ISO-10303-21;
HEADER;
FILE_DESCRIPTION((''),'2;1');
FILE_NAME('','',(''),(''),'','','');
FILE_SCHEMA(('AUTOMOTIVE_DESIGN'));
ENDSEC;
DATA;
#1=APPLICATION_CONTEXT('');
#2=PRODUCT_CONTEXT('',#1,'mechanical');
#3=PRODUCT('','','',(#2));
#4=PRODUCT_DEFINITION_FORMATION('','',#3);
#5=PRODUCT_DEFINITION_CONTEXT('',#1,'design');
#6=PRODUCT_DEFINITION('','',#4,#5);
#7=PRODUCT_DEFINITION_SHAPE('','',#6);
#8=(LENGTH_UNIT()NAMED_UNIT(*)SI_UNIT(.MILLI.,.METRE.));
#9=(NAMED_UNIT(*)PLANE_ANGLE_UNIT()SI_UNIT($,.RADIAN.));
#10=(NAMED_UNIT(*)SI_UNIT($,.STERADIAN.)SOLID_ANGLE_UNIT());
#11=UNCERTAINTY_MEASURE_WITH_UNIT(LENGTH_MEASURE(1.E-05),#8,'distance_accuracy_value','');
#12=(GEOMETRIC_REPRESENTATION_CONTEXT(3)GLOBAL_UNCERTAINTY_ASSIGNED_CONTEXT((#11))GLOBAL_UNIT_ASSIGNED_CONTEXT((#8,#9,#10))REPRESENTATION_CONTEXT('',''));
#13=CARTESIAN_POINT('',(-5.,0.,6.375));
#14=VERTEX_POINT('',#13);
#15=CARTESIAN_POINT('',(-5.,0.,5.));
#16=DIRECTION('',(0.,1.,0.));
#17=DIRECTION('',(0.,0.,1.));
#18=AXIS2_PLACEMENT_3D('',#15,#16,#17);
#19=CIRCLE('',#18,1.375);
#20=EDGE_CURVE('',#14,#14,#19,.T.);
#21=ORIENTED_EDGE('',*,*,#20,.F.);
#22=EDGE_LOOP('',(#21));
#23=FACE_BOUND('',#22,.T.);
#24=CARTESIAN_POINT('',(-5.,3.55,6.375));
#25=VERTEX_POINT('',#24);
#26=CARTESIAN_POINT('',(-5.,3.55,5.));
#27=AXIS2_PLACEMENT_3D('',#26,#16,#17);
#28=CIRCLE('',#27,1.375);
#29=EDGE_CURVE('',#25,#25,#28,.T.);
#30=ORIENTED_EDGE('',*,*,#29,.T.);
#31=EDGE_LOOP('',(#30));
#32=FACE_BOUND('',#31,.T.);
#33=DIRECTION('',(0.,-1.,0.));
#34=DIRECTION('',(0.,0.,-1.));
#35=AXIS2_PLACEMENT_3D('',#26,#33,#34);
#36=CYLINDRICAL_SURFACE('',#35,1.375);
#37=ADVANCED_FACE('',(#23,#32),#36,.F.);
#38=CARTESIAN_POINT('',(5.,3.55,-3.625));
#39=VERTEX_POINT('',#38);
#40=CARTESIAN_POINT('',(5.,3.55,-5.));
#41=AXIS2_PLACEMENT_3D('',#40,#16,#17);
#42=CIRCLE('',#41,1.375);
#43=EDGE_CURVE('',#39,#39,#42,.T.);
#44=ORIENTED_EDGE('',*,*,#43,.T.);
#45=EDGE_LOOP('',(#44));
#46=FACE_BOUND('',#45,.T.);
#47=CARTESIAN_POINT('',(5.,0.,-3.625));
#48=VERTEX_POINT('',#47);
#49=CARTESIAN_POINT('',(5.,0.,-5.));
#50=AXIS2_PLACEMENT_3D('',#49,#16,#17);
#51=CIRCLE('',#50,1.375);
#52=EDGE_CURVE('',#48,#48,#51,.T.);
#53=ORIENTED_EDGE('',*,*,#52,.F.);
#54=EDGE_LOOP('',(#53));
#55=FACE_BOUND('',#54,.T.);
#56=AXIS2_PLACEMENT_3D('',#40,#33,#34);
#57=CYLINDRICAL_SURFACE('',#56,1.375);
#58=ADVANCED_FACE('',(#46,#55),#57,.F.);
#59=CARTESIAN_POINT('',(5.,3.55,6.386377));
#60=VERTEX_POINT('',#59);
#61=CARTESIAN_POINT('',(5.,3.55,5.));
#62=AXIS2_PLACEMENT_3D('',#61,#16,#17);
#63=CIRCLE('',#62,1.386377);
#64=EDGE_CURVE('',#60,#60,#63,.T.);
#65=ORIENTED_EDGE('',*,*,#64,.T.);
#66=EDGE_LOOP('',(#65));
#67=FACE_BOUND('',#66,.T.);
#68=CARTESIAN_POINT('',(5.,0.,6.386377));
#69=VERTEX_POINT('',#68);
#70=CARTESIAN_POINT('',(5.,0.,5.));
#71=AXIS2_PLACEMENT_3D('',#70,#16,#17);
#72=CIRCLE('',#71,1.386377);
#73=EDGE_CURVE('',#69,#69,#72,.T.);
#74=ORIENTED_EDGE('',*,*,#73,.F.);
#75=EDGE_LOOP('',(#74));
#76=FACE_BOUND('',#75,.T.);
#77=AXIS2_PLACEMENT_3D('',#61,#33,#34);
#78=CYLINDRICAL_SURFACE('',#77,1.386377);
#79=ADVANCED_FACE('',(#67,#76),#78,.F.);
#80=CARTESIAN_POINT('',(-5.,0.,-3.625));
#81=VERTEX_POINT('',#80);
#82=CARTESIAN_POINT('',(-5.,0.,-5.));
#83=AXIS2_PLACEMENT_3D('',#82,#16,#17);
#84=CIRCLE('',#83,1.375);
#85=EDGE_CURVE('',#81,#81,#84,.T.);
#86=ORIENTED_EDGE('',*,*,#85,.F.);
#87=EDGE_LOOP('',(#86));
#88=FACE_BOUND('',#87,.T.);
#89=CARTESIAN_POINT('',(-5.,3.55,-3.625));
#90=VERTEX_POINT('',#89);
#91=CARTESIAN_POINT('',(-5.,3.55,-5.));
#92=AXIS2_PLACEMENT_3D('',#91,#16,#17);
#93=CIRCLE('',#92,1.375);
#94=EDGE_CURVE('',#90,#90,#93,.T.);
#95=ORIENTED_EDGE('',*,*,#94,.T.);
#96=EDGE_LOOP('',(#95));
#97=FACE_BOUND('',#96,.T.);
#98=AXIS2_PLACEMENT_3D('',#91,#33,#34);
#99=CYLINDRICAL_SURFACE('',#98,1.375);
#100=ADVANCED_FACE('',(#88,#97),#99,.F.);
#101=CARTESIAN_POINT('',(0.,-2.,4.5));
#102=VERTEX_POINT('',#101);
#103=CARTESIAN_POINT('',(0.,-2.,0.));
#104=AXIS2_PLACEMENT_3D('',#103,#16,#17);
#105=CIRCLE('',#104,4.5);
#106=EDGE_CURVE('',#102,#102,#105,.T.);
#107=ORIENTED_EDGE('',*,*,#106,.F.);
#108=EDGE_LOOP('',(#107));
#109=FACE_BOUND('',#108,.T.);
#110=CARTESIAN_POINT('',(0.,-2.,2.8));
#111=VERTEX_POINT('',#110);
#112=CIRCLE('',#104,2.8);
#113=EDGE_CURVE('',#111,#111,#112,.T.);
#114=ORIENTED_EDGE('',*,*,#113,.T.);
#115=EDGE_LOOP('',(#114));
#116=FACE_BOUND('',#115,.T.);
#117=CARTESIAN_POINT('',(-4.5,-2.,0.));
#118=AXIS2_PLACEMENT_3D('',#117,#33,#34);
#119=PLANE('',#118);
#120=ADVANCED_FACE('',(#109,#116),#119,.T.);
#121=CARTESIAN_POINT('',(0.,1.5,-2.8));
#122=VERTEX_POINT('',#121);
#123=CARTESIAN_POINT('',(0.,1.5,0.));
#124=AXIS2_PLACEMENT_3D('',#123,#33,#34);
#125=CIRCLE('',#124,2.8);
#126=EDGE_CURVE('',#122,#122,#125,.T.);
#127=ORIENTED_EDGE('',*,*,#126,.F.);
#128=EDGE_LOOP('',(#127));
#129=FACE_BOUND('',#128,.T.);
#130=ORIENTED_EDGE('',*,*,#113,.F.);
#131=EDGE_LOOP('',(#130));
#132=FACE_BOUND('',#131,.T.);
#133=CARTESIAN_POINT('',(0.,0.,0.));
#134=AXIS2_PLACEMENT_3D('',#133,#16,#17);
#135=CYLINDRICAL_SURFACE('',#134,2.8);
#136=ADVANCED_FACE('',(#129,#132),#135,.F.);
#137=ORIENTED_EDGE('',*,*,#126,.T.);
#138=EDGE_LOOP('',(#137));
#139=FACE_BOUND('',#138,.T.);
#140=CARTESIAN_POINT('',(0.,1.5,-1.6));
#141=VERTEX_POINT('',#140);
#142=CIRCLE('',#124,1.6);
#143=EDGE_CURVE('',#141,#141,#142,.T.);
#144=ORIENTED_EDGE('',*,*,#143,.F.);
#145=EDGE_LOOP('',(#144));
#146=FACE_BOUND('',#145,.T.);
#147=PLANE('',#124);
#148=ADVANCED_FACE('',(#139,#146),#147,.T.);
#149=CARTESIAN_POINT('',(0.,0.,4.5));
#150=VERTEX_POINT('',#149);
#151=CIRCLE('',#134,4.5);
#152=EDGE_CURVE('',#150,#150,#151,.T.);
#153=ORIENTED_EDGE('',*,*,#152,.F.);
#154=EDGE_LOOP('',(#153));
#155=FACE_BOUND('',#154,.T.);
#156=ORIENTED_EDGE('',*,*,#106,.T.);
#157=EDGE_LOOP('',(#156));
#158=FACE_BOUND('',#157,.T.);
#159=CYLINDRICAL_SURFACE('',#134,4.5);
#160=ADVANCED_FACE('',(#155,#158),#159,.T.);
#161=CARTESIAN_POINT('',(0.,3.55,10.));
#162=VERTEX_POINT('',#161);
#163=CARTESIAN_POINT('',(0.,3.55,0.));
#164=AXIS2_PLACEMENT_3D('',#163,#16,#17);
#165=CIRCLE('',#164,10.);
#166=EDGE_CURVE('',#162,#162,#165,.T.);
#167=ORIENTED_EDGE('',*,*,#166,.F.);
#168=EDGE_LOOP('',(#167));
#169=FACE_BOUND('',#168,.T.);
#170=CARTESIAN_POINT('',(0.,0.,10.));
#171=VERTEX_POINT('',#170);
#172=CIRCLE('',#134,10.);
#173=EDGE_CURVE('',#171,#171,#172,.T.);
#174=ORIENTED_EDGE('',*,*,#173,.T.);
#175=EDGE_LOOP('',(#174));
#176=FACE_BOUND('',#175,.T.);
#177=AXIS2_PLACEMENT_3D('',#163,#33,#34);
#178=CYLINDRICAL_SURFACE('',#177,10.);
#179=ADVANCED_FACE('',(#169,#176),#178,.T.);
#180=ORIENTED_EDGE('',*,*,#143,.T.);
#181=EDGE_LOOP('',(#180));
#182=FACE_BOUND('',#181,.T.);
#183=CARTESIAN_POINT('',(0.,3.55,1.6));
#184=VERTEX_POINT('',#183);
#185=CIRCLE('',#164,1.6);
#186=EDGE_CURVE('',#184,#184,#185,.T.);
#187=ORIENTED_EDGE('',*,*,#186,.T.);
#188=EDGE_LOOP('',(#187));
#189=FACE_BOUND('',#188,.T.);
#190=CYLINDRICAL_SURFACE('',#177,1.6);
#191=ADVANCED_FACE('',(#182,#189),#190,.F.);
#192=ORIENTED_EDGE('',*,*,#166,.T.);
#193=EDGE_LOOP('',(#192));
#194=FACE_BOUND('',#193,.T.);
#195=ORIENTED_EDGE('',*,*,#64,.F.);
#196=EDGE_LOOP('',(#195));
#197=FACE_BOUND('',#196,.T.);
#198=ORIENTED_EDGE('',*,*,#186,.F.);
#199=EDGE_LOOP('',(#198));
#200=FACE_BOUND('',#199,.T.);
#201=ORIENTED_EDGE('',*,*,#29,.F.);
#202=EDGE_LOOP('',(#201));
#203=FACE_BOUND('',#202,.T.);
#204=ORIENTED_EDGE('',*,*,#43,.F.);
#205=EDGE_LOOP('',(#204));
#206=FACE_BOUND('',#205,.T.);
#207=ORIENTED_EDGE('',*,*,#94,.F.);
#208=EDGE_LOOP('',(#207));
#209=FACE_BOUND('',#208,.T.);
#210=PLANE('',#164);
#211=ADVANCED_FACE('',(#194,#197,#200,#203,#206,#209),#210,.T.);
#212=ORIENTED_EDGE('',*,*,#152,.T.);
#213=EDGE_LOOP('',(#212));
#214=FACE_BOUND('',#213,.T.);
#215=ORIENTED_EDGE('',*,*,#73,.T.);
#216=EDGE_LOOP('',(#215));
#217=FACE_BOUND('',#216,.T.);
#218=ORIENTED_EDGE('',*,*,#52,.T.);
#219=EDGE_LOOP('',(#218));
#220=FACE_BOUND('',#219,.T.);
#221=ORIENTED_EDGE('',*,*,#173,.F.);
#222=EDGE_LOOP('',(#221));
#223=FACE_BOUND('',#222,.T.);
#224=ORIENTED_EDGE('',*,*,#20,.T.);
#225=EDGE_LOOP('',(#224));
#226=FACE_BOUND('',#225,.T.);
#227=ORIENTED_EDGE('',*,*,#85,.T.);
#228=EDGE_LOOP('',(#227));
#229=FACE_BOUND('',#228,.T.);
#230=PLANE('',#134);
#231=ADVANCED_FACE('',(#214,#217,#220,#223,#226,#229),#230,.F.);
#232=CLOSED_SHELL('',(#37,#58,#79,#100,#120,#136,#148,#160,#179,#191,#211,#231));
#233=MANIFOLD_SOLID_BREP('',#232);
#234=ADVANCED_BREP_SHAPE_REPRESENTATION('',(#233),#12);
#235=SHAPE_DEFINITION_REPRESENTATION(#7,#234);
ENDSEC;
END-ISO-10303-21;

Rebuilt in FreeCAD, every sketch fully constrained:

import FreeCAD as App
import Part
import Sketcher

V = App.Vector

doc = App.newDocument("Part")
params = doc.addObject("Spreadsheet::Sheet", "Params")
for row, (alias, value) in enumerate([
    ("sketch1_diameter", "20 mm"),
    ("sketch1_diameter2", "3.2 mm"),
    ("sketch1_diameter3", "2.75 mm"),
    ("pad1_length", "3.55 mm"),
    ("sketch2_width", "1.7 mm"),
    ("sketch2_height", "3.5 mm"),
    ("revolution_angle", "360 deg"),
    ("sketch3_diameter", "5.6 mm"),
    ("pocket1_length", "1.5 mm"),
], start=1):
    params.set(f"A{row}", alias)
    params.set(f"B{row}", "=" + value)
    params.setAlias(f"B{row}", alias)

body = doc.addObject("PartDesign::Body", "Body")

# Sketch on XZ plane
sketch1 = doc.addObject("Sketcher::SketchObject", "Sketch")
body.addObject(sketch1)
sketch1.AttachmentSupport = (doc.XZ_Plane, [""])
sketch1.MapMode = "FlatFace"
sketch1.addGeometry([
    Part.Circle(V(0, 0, 0), V(0, 0, 1), 10),  # 0
    Part.Circle(V(-5, -5, 0), V(0, 0, 1), 1.4),  # 1
    Part.Circle(V(0, 0, 0), V(0, 0, 1), 1.6),  # 2
    Part.Circle(V(-5, 5, 0), V(0, 0, 1), 1.4),  # 3
    Part.Circle(V(5, -5, 0), V(0, 0, 1), 1.4),  # 4
    Part.Circle(V(5, 5, 0), V(0, 0, 1), 1.4),  # 5
], False)
sketch1.addConstraint([
    Sketcher.Constraint("Coincident", 0, 3, -1, 1),
    Sketcher.Constraint("Coincident", 2, 3, -1, 1),
    Sketcher.Constraint("Equal", 1, 3),
    Sketcher.Constraint("Equal", 3, 4),
    Sketcher.Constraint("Symmetric", 3, 3, 4, 3, -1, 1),
    Sketcher.Constraint("Symmetric", 1, 3, 5, 3, -1, 1),
    Sketcher.Constraint("Symmetric", 1, 3, 4, 3, -2),
    Sketcher.Constraint("Diameter", 0, 20.0),
    Sketcher.Constraint("Diameter", 2, 3.2),
    Sketcher.Constraint("Diameter", 1, 2.75),
    Sketcher.Constraint("DistanceX", 1, 3, -1, 1, 5.0),
    Sketcher.Constraint("DistanceY", 1, 3, -1, 1, 5.0),
    Sketcher.Constraint("Diameter", 5, 2.772753),
])
sketch1.setExpression("Constraints[7]", "Params.sketch1_diameter")
sketch1.setExpression("Constraints[8]", "Params.sketch1_diameter2")
sketch1.setExpression("Constraints[9]", "Params.sketch1_diameter3")
pad1 = doc.addObject("PartDesign::Pad", "Pad")
body.addObject(pad1)
pad1.Profile = sketch1
pad1.setExpression("Length", "Params.pad1_length")
pad1.Reversed = True

# Sketch on XY plane
sketch2 = doc.addObject("Sketcher::SketchObject", "Sketch001")
body.addObject(sketch2)
sketch2.AttachmentSupport = (doc.XY_Plane, [""])
sketch2.MapMode = "FlatFace"
sketch2.addGeometry([
    Part.LineSegment(V(-4.5, 1.5, 0), V(-4.5, -2, 0)),
    Part.LineSegment(V(-4.5, -2, 0), V(-2.8, -2, 0)),
    Part.LineSegment(V(-2.8, -2, 0), V(-2.8, 1.5, 0)),
    Part.LineSegment(V(-2.8, 1.5, 0), V(-4.5, 1.5, 0)),
], False)
sketch2.addConstraint([
    Sketcher.Constraint("Coincident", 0, 2, 1, 1),
    Sketcher.Constraint("Coincident", 1, 2, 2, 1),
    Sketcher.Constraint("Coincident", 2, 2, 3, 1),
    Sketcher.Constraint("Coincident", 3, 2, 0, 1),
    Sketcher.Constraint("Vertical", 0),
    Sketcher.Constraint("Horizontal", 1),
    Sketcher.Constraint("Vertical", 2),
    Sketcher.Constraint("Horizontal", 3),
    Sketcher.Constraint("DistanceX", 1, 1, 1, 2, 1.7),
    Sketcher.Constraint("DistanceY", 0, 2, 0, 1, 3.5),
    Sketcher.Constraint("DistanceY", 0, 2, -1, 1, 2.0),
    Sketcher.Constraint("DistanceX", 0, 2, -1, 1, 4.5),
])
sketch2.setExpression("Constraints[8]", "Params.sketch2_width")
sketch2.setExpression("Constraints[9]", "Params.sketch2_height")
revolution = doc.addObject("PartDesign::Revolution", "Revolution")
body.addObject(revolution)
revolution.Profile = sketch2
revolution.ReferenceAxis = (sketch2, ["V_Axis"])
revolution.setExpression("Angle", "Params.revolution_angle")

# Sketch on XZ plane
sketch3 = doc.addObject("Sketcher::SketchObject", "Sketch002")
body.addObject(sketch3)
sketch3.AttachmentSupport = (doc.XZ_Plane, [""])
sketch3.MapMode = "FlatFace"
sketch3.AttachmentOffset = App.Placement(V(0, 0, -1.5), App.Rotation())
sketch3.addGeometry(Part.Circle(V(0, 0, 0), V(0, 0, 1), 2.8), False)
sketch3.addConstraint([
    Sketcher.Constraint("Coincident", 0, 3, -1, 1),
    Sketcher.Constraint("Diameter", 0, 5.6),
])
sketch3.setExpression("Constraints[1]", "Params.sketch3_diameter")
pocket1 = doc.addObject("PartDesign::Pocket", "Pocket")
body.addObject(pocket1)
pocket1.Profile = sketch3
pocket1.setExpression("Length", "Params.pocket1_length")
pocket1.Reversed = True

doc.recompute()
